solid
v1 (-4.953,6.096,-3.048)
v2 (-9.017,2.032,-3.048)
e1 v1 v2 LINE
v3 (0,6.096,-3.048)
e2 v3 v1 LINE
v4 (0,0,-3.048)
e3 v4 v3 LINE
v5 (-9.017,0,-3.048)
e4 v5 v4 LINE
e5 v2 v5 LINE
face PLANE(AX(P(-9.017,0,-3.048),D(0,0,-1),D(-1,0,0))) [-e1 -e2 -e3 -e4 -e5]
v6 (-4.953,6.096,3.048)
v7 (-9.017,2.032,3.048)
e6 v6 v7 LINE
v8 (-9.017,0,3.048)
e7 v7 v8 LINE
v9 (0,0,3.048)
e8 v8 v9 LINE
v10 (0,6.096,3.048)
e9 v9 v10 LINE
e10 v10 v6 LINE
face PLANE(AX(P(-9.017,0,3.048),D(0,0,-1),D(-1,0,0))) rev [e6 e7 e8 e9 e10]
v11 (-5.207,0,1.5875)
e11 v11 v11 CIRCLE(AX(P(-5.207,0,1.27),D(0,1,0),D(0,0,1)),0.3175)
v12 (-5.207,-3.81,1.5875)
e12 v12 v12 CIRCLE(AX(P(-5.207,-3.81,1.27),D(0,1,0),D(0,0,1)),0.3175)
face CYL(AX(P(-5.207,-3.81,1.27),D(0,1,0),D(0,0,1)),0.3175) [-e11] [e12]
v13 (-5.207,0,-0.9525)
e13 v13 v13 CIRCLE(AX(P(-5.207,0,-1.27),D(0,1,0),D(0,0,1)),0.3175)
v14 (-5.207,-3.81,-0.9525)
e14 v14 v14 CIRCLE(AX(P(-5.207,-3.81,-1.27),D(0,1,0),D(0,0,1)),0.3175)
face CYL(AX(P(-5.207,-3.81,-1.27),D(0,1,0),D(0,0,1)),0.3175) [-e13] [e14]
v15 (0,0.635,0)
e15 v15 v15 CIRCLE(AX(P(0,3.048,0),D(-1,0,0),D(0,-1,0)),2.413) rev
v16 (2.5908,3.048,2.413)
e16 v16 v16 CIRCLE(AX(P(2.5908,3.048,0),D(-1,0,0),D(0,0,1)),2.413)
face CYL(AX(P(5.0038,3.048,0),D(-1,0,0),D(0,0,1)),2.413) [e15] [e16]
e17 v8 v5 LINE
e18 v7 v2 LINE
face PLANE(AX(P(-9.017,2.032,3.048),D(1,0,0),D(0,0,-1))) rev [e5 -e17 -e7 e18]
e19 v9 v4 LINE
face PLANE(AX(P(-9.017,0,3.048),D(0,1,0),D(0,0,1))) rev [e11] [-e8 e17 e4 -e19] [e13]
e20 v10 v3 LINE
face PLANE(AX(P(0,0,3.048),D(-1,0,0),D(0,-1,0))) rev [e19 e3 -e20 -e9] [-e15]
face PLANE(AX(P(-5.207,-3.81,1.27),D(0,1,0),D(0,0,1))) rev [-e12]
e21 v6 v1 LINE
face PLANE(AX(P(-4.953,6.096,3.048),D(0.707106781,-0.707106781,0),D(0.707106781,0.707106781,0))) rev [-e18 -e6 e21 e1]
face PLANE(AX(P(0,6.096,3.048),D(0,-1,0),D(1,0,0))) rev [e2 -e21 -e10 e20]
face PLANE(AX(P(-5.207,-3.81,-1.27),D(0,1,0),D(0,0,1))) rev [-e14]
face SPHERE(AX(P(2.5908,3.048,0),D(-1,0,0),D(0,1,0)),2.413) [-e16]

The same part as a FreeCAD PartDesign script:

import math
import FreeCAD as App
import Part
import Sketcher

V = App.Vector
Q = App.Units.Quantity


def add_polygon(sketch, points):
    """Adds a closed chain of lines whose ends are joined by coincident constraints."""
    first, n = sketch.GeometryCount, len(points)
    for a, b in zip(points, points[1:] + points[:1]):
        sketch.addGeometry(Part.LineSegment(App.Vector(*a, 0), App.Vector(*b, 0)), False)
    for i in range(n):
        sketch.addConstraint(Sketcher.Constraint("Coincident", first + i, 2, first + (i + 1) % n, 1))

doc = App.newDocument("Part")
params = doc.addObject("Spreadsheet::Sheet", "Params")
for row, (alias, value) in enumerate([
    ("sketch1_height", "0.24 in"),
    ("sketch1_height2", "0.08 in"),
    ("sketch1_width", "0.195 in"),
    ("pad1_length", "0.24 in"),
    ("sketch2_radius", "0.095 in"),
    ("sketch2_width", "0.237 in"),
    ("revolution_angle", "360 deg"),
    ("sketch3_diameter", "0.025 in"),
    ("pad2_length", "0.15 in"),
], start=1):
    params.set(f"A{row}", alias)
    params.set(f"B{row}", "=" + value)
    params.setAlias(f"B{row}", alias)

body = doc.addObject("PartDesign::Body", "Body")

sketch1 = body.newObject("Sketcher::SketchObject", "Sketch")
sketch1.AttachmentSupport = (doc.getObject("XY_Plane"), [""])
sketch1.MapMode = "FlatFace"
add_polygon(sketch1, [(0, 0), (0, 6.096), (-4.953, 6.096), (-9.017, 2.032), (-9.017, 0)])
sketch1.addConstraint(Sketcher.Constraint("Vertical", 0))
sketch1.addConstraint(Sketcher.Constraint("Horizontal", 1))
sketch1.addConstraint(Sketcher.Constraint("Vertical", 3))
sketch1.addConstraint(Sketcher.Constraint("Horizontal", 4))
sketch1.addConstraint(Sketcher.Constraint("Coincident", 4, 2, -1, 1))
sketch1.addConstraint(Sketcher.Constraint("Angle", 2, Q("-135 deg")))
sketch1.addConstraint(Sketcher.Constraint("DistanceY", 0, 1, 0, 2, Q("0.24 in")))
sketch1.addConstraint(Sketcher.Constraint("DistanceY", 3, 2, 3, 1, Q("0.08 in")))
sketch1.addConstraint(Sketcher.Constraint("DistanceX", 1, 2, 1, 1, Q("0.195 in")))
sketch1.setExpression("Constraints[11]", "Params.sketch1_height")
sketch1.setExpression("Constraints[12]", "Params.sketch1_height2")
sketch1.setExpression("Constraints[13]", "Params.sketch1_width")
pad1 = body.newObject("PartDesign::Pad", "Pad")
pad1.Profile = sketch1
pad1.setExpression("Length", "Params.pad1_length")
pad1.Midplane = True

sketch2 = body.newObject("Sketcher::SketchObject", "Sketch001")
sketch2.AttachmentSupport = (doc.getObject("XY_Plane"), [""])
sketch2.MapMode = "FlatFace"
sketch2.addGeometry(Part.LineSegment(V(-1.016, 3.048, 0), V(5.0038, 3.048, 0)), False)
sketch2.addGeometry(Part.ArcOfCircle(Part.Circle(V(2.5908, 3.048, 0), V(0, 0, 1), 2.413), math.radians(0), math.radians(90)), False)
sketch2.addGeometry(Part.LineSegment(V(2.5908, 5.461, 0), V(-1.016, 5.461, 0)), False)
sketch2.addGeometry(Part.LineSegment(V(-1.016, 5.461, 0), V(-1.016, 3.048, 0)), False)
sketch2.addGeometry(Part.LineSegment(V(-1.016, 3.048, 0), V(5.0038, 3.048, 0)), True)
sketch2.addConstraint(Sketcher.Constraint("Coincident", 0, 2, 1, 1))
sketch2.addConstraint(Sketcher.Constraint("Tangent", 1, 2, 2, 1))
sketch2.addConstraint(Sketcher.Constraint("Coincident", 2, 2, 3, 1))
sketch2.addConstraint(Sketcher.Constraint("Coincident", 3, 2, 0, 1))
sketch2.addConstraint(Sketcher.Constraint("Horizontal", 0))
sketch2.addConstraint(Sketcher.Constraint("Horizontal", 2))
sketch2.addConstraint(Sketcher.Constraint("Vertical", 3))
sketch2.addConstraint(Sketcher.Constraint("Horizontal", 4))
sketch2.addConstraint(Sketcher.Constraint("Coincident", 4, 1, 3, 2))
sketch2.addConstraint(Sketcher.Constraint("Horizontal", 1, 3, 0, 2))
sketch2.addConstraint(Sketcher.Constraint("Equal", 0, 4))
sketch2.addConstraint(Sketcher.Constraint("Radius", 1, Q("0.095 in")))
sketch2.addConstraint(Sketcher.Constraint("DistanceX", 0, 1, 0, 2, Q("0.237 in")))
sketch2.addConstraint(Sketcher.Constraint("DistanceY", -1, 1, 1, 3, Q("0.12 in")))
sketch2.addConstraint(Sketcher.Constraint("DistanceX", 2, 2, -1, 1, Q("0.04 in")))
sketch2.setExpression("Constraints[11]", "Params.sketch2_radius")
sketch2.setExpression("Constraints[12]", "Params.sketch2_width")
revolution = body.newObject("PartDesign::Revolution", "Revolution")
revolution.Profile = sketch2
revolution.ReferenceAxis = (sketch2, ["Axis0"])
revolution.setExpression("Angle", "Params.revolution_angle")

sketch3 = body.newObject("Sketcher::SketchObject", "Sketch002")
sketch3.AttachmentSupport = (doc.getObject("XZ_Plane"), [""])
sketch3.MapMode = "FlatFace"
sketch3.addGeometry(Part.Circle(V(-5.207, 1.27, 0), V(0, 0, 1), 0.3175), False)
sketch3.addGeometry(Part.Circle(V(-5.207, -1.27, 0), V(0, 0, 1), 0.3175), False)
sketch3.addConstraint(Sketcher.Constraint("Equal", 0, 1))
sketch3.addConstraint(Sketcher.Constraint("Symmetric", 0, 3, 1, 3, -1))
sketch3.addConstraint(Sketcher.Constraint("Diameter", 0, Q("0.025 in")))
sketch3.addConstraint(Sketcher.Constraint("DistanceY", 1, 3, 0, 3, Q("0.1 in")))
sketch3.addConstraint(Sketcher.Constraint("DistanceX", 0, 3, -1, 1, Q("0.205 in")))
sketch3.setExpression("Constraints[2]", "Params.sketch3_diameter")
pad2 = body.newObject("PartDesign::Pad", "Pad001")
pad2.Profile = sketch3
pad2.setExpression("Length", "Params.pad2_length")

doc.recompute()
